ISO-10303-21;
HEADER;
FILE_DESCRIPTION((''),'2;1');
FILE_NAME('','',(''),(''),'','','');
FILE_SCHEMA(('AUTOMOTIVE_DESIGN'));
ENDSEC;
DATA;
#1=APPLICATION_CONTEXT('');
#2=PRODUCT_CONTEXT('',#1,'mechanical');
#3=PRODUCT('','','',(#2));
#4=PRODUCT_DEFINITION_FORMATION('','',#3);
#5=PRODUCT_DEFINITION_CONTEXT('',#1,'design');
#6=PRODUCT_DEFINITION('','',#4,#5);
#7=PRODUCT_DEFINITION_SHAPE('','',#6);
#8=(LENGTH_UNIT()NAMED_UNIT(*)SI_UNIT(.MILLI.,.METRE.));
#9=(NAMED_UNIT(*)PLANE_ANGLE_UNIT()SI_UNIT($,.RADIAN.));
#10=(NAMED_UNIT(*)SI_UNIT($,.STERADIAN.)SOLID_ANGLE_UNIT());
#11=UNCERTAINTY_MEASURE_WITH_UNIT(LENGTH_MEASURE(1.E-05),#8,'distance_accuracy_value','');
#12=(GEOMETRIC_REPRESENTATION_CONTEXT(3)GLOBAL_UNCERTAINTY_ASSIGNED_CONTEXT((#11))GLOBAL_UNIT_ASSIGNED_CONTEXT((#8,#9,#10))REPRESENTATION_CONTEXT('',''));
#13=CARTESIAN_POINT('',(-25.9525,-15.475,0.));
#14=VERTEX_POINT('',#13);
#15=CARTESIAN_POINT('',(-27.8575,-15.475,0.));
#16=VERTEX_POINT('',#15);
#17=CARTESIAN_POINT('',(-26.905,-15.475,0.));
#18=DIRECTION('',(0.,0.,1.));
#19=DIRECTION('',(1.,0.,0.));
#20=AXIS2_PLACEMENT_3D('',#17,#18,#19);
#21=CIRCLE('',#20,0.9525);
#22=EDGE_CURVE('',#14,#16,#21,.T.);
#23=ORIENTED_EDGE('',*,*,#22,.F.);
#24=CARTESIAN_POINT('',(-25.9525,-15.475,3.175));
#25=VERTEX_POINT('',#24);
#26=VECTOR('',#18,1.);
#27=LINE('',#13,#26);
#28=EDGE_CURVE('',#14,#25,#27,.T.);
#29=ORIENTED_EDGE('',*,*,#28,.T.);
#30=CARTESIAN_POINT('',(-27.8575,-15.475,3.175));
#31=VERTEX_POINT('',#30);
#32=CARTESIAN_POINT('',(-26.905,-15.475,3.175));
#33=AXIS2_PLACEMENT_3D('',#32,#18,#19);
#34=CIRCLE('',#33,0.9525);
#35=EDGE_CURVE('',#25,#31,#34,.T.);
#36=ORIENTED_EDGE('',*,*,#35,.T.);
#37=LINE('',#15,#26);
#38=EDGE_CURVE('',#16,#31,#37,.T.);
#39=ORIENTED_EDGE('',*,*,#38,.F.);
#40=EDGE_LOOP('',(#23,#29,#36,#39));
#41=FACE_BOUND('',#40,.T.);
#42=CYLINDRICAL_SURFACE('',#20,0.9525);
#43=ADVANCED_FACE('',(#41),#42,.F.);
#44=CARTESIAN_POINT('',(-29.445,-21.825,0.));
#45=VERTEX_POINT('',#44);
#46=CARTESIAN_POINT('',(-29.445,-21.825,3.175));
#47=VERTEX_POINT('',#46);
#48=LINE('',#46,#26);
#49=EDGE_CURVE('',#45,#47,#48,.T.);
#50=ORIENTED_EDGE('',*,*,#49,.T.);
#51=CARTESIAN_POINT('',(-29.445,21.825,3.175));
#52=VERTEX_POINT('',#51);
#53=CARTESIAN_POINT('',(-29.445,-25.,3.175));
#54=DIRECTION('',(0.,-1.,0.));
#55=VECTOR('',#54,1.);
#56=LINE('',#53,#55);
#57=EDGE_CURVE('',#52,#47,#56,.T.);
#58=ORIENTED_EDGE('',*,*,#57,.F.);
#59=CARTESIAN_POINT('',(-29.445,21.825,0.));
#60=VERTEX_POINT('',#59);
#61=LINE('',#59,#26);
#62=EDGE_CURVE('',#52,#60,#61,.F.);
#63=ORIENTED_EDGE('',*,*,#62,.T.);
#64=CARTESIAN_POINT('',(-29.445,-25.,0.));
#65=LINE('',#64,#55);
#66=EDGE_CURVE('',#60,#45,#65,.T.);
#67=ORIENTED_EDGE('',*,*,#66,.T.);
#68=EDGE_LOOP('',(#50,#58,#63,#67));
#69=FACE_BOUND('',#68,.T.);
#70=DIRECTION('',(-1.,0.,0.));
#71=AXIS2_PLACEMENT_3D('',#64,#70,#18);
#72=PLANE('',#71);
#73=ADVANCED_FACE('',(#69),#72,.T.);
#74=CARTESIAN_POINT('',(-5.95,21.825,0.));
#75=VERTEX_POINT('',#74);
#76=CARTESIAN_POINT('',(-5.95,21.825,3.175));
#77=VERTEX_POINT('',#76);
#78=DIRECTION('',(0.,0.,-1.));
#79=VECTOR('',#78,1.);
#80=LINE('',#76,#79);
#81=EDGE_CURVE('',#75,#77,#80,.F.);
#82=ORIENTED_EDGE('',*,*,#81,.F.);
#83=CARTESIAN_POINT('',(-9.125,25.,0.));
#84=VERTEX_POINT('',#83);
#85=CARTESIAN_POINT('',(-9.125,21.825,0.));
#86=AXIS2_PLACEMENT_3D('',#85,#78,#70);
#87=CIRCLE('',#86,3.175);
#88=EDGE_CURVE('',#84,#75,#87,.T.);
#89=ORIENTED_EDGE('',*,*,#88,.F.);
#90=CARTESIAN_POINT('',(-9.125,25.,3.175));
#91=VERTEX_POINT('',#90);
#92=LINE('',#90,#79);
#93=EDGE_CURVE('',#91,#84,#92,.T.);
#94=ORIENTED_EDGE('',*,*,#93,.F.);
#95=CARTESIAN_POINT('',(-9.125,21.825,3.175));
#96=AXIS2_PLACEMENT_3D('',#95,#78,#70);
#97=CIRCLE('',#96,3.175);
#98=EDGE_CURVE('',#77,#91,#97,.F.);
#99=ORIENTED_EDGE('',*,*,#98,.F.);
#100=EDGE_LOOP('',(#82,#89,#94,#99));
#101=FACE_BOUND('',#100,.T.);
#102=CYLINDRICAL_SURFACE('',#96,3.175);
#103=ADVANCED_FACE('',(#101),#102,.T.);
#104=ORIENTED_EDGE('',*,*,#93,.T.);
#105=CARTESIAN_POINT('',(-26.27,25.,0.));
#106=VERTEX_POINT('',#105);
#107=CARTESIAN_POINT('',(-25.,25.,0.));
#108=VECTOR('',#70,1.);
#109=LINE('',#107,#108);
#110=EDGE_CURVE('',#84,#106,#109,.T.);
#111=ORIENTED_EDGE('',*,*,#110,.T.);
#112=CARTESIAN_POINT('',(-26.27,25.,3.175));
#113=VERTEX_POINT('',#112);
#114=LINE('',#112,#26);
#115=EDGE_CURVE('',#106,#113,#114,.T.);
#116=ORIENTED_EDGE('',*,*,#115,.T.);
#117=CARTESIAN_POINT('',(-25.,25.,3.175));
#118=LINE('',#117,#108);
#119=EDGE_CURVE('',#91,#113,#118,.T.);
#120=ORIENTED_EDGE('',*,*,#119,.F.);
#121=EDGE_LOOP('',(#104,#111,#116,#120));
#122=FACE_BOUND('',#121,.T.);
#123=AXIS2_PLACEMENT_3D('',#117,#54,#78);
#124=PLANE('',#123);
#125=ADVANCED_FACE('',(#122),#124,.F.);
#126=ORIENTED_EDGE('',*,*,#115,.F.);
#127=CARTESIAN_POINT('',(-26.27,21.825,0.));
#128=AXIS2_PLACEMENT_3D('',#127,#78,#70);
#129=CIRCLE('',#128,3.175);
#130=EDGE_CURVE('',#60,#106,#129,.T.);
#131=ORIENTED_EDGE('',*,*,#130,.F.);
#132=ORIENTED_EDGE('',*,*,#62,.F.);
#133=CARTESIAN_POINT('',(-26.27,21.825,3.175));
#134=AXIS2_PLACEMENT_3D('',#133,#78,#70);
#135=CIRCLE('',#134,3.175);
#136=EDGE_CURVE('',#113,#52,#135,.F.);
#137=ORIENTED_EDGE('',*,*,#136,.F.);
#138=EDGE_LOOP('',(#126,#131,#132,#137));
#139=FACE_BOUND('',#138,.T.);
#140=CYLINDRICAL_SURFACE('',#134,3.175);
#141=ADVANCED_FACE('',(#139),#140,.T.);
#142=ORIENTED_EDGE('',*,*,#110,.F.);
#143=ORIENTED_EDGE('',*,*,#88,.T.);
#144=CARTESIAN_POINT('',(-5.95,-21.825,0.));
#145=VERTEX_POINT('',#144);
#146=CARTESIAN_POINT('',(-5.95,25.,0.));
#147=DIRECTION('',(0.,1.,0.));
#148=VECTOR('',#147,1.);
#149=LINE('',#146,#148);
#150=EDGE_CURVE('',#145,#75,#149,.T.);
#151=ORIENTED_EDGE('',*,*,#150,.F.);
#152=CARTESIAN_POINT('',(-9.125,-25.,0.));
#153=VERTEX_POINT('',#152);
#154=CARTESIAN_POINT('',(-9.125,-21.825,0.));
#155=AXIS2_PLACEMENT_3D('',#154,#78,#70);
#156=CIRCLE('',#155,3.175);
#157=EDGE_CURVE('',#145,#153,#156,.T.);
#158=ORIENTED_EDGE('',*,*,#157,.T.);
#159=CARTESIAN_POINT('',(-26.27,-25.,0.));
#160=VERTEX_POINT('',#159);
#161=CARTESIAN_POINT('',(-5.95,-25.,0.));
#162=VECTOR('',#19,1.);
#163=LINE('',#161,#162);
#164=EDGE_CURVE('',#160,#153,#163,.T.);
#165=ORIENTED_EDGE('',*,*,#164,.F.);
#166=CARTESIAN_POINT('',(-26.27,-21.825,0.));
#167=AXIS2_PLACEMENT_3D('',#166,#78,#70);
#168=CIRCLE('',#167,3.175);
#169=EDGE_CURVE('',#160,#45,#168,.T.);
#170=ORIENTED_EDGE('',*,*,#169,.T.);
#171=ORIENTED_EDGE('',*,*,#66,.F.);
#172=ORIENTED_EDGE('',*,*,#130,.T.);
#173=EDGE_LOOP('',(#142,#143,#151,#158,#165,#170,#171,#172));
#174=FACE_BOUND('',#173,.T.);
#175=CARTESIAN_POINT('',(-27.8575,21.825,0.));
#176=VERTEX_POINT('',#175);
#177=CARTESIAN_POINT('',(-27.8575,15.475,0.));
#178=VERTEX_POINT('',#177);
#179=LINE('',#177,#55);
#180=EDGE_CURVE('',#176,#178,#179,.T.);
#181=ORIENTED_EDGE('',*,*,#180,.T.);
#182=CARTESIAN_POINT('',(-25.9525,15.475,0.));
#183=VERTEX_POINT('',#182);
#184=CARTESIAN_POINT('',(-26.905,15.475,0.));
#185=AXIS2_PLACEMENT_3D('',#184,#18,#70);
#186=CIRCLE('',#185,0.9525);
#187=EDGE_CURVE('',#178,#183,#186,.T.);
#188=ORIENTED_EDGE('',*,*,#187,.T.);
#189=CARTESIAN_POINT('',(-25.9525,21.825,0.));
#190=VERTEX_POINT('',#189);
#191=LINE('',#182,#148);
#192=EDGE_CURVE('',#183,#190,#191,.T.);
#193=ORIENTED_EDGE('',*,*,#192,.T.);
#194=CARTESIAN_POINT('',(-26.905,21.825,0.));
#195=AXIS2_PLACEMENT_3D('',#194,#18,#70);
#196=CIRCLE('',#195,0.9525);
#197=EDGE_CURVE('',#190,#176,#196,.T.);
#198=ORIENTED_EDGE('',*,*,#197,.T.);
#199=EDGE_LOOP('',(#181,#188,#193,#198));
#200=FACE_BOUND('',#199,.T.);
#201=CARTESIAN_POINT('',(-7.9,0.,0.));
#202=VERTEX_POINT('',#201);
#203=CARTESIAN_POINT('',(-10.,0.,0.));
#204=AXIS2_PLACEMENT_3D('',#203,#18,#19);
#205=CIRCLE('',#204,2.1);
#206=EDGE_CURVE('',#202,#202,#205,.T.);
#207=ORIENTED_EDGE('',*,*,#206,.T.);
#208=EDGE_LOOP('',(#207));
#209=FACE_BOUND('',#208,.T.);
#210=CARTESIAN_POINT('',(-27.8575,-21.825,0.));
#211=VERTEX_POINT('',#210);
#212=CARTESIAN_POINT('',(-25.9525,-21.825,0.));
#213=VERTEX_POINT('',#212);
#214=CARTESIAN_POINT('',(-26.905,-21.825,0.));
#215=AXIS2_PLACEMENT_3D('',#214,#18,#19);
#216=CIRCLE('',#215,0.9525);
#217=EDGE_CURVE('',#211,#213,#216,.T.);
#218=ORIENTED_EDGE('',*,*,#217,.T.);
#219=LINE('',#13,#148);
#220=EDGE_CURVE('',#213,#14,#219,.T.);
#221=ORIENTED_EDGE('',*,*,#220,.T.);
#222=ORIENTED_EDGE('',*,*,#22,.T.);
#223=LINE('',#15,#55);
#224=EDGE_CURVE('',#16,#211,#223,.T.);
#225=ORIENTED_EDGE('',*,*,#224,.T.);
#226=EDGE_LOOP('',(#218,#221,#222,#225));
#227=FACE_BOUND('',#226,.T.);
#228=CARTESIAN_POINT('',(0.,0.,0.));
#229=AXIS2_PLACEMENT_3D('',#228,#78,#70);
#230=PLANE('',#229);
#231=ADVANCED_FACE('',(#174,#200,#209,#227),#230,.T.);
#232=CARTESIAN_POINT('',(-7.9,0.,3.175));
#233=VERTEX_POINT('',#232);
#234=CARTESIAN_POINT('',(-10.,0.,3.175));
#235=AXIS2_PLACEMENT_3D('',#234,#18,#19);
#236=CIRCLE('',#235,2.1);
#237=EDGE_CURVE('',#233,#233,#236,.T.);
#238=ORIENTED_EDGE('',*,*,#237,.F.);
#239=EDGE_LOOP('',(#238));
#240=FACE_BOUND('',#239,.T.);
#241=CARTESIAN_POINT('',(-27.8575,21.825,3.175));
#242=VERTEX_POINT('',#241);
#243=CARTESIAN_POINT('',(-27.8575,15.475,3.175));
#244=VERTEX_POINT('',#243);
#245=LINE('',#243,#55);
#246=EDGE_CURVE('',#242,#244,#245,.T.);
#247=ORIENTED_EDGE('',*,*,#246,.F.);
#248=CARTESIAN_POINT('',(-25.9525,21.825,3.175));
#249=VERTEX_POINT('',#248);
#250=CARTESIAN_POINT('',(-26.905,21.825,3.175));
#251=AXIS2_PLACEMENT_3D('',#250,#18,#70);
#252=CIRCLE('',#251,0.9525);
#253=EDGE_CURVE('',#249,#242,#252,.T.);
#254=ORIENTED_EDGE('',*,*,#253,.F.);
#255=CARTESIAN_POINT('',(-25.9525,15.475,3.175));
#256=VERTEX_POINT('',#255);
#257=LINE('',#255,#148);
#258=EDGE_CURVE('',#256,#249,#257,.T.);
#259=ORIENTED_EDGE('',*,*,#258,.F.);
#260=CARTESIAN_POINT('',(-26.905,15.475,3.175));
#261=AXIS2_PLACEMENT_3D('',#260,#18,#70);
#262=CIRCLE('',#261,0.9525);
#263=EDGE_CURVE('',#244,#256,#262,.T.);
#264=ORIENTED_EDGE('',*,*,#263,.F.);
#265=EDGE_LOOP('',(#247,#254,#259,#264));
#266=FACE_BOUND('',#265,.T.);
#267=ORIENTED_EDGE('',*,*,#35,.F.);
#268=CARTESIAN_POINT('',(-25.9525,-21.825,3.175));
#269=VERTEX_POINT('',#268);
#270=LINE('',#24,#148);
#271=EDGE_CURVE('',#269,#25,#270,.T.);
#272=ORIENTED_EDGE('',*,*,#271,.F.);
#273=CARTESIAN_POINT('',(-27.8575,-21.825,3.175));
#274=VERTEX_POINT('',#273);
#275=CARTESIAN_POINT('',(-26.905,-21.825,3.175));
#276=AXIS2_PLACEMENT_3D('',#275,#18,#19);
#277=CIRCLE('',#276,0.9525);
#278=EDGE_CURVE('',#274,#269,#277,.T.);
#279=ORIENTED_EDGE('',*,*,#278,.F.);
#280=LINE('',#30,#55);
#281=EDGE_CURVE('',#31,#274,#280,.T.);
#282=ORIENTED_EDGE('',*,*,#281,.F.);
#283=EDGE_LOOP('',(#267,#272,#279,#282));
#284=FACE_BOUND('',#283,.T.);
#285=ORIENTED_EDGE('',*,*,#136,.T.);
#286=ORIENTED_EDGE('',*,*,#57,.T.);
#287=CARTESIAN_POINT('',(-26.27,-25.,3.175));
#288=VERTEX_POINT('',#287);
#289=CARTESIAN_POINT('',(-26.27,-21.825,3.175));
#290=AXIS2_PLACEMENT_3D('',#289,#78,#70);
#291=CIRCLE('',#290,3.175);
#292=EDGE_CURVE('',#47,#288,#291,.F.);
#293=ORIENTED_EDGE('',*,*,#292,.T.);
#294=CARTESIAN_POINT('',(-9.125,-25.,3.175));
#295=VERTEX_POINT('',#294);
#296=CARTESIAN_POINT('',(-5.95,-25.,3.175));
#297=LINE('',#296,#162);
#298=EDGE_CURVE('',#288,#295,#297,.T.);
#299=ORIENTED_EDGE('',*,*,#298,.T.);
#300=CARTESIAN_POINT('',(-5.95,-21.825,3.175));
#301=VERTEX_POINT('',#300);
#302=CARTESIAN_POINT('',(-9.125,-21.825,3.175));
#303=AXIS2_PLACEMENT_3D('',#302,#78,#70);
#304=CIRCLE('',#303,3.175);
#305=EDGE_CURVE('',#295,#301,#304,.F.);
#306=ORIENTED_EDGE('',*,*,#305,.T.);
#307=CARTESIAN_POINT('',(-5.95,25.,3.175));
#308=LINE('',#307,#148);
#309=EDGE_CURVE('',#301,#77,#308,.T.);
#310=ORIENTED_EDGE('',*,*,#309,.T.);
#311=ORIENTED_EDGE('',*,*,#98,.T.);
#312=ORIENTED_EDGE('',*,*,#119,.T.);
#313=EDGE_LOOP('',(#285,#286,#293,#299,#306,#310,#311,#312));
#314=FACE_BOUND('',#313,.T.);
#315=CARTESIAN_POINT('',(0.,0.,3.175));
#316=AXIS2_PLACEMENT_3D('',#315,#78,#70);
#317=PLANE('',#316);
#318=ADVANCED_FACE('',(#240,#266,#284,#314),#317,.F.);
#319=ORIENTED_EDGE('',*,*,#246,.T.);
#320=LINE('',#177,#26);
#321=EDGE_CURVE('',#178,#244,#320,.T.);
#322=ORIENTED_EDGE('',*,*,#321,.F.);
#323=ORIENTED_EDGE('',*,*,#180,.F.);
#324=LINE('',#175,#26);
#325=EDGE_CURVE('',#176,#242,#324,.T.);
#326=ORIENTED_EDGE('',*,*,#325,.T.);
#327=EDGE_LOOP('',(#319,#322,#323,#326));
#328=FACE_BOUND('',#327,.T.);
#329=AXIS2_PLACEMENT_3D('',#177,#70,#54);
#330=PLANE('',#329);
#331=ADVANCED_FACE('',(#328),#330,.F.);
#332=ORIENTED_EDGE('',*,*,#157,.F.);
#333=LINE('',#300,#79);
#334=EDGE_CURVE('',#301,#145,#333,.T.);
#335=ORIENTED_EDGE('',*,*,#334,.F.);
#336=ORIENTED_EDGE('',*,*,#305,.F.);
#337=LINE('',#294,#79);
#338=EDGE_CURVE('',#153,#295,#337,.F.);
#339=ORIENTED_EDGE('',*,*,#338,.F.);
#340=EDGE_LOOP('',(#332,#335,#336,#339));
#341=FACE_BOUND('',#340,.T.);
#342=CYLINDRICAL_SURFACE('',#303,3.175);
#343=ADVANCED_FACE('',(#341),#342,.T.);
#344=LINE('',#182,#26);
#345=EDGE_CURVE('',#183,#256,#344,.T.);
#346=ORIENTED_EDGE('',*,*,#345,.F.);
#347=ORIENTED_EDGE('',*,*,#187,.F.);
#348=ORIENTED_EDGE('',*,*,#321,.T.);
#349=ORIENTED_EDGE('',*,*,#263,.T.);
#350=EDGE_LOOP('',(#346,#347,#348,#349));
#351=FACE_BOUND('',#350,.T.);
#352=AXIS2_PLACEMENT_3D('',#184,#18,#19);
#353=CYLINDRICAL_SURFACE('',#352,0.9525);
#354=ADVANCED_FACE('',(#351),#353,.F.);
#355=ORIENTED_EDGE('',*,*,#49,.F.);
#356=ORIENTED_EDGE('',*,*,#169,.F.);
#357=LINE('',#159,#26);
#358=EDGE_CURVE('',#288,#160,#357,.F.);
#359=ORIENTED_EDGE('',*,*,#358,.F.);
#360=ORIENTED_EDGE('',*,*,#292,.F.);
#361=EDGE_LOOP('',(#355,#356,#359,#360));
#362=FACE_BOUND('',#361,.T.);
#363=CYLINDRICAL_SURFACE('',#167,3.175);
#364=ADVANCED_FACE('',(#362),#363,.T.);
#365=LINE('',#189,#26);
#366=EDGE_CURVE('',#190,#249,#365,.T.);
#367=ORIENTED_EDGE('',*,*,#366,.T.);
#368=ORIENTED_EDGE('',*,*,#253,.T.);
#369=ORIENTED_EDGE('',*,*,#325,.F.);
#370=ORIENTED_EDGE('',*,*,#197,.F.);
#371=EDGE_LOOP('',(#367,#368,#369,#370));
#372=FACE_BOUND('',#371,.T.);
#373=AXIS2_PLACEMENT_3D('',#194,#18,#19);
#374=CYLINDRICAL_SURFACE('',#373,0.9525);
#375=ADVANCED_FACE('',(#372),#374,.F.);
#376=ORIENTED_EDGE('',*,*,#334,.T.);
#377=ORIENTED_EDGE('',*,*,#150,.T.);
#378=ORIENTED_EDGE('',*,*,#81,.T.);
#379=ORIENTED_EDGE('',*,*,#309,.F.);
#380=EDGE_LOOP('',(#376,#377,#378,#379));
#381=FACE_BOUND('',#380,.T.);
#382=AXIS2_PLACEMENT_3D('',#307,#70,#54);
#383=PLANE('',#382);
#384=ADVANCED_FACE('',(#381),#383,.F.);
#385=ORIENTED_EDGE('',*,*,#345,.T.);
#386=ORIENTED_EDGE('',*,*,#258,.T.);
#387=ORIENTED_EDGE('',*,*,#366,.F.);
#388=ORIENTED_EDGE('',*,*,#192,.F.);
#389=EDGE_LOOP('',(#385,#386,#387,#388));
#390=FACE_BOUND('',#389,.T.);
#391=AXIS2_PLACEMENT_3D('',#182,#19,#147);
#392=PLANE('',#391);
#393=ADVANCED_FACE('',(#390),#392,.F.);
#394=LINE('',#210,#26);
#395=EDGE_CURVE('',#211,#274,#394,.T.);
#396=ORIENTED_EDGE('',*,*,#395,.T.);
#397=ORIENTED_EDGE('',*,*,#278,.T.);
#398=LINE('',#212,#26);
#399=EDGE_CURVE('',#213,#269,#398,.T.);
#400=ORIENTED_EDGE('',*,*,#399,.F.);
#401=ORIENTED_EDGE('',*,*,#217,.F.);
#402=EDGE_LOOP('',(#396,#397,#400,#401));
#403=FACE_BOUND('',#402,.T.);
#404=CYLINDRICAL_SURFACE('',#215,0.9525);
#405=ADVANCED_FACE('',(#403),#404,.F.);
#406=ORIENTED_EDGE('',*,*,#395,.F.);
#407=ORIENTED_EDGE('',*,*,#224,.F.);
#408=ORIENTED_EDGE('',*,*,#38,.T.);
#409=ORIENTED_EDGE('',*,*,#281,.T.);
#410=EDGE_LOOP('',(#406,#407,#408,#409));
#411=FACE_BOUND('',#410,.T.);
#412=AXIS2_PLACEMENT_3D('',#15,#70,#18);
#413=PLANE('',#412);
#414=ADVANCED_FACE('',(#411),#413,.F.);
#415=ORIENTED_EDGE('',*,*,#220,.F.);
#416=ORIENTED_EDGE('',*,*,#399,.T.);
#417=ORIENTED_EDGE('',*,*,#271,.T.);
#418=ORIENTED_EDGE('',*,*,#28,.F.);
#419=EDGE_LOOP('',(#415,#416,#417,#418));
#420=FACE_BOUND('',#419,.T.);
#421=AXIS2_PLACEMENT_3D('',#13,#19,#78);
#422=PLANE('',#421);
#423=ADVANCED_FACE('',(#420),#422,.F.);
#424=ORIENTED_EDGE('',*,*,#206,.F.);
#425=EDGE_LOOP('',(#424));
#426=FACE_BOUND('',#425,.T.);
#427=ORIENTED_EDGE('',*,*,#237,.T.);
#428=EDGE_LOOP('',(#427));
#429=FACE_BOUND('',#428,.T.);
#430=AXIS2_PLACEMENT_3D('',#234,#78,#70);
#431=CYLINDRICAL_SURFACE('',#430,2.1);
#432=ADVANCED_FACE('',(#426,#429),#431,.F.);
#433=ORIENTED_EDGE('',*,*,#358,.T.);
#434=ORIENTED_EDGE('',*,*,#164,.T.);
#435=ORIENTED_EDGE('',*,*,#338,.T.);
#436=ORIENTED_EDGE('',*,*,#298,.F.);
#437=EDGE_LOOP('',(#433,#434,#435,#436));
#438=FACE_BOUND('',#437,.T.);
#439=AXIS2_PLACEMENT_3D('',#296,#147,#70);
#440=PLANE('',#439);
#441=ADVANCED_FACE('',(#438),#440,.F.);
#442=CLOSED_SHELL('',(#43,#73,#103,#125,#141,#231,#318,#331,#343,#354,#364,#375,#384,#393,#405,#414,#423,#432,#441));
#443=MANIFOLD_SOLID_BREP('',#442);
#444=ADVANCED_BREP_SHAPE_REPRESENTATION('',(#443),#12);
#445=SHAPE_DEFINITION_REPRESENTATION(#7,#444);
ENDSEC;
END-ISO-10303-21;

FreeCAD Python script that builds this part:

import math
import FreeCAD as App
import Part
import Sketcher

V = App.Vector
Q = App.Units.Quantity


def edges_at(feature, points):
    """Names of the edges that pass closest to the given points."""
    edges = feature.Shape.Edges
    near = lambda p: min(range(len(edges)), key=lambda i: edges[i].distToShape(Part.Vertex(*p))[0])
    return sorted({f"Edge{near(p) + 1}" for p in points})

doc = App.newDocument("Part")
body = doc.addObject("PartDesign::Body", "Body")

# Sketch on XY plane
sketch1 = body.newObject("Sketcher::SketchObject", "Sketch")
sketch1.AttachmentSupport = (doc.getObject("XY_Plane"), [""])
sketch1.MapMode = "FlatFace"
sketch1.addGeometry([
    Part.LineSegment(V(-25, 25, 0), V(-25, -25, 0)),  # 0
    Part.LineSegment(V(-25, -25, 0), V(-5.95, -25, 0)),  # 1
    Part.LineSegment(V(-5.95, -25, 0), V(-5.95, 25, 0)),  # 2
    Part.LineSegment(V(-5.95, 25, 0), V(-25, 25, 0)),  # 3
    Part.Circle(V(-10, 0, 0), V(0, 0, 1), 2.1),  # 4
], False)
sketch1.addConstraint([
    Sketcher.Constraint("Coincident", 0, 2, 1, 1),
    Sketcher.Constraint("Coincident", 1, 2, 2, 1),
    Sketcher.Constraint("Coincident", 2, 2, 3, 1),
    Sketcher.Constraint("Coincident", 3, 2, 0, 1),
    Sketcher.Constraint("Vertical", 0),
    Sketcher.Constraint("Horizontal", 1),
    Sketcher.Constraint("Vertical", 2),
    Sketcher.Constraint("Horizontal", 3),
    Sketcher.Constraint("PointOnObject", 4, 3, -1),
    Sketcher.Constraint("DistanceX", 1, 1, 1, 2, Q("0.75 in")),
    Sketcher.Constraint("Diameter", 4, Q("4.2 mm")),
    Sketcher.Constraint("DistanceY", 0, 2, 0, 1, Q("50 mm")),
    Sketcher.Constraint("DistanceX", 4, 3, -1, 1, Q("10 mm")),
    Sketcher.Constraint("DistanceX", 0, 2, -1, 1, Q("25 mm")),
    Sketcher.Constraint("DistanceY", 0, 2, -1, 1, Q("25 mm")),
])
pad1 = body.newObject("PartDesign::Pad", "Pad")
pad1.Profile = sketch1
pad1.Length = Q("0.125 in")

# Sketch on XY plane
sketch2 = body.newObject("Sketcher::SketchObject", "Sketch001")
sketch2.AttachmentSupport = (doc.getObject("XY_Plane"), [""])
sketch2.MapMode = "FlatFace"
sketch2.AttachmentOffset = App.Placement(V(0, 0, 0.125 * 25.4), App.Rotation())
sketch2.addGeometry([
    Part.LineSegment(V(-29.445, 25, 0), V(-29.445, -25, 0)),
    Part.LineSegment(V(-29.445, -25, 0), V(-25, -25, 0)),
    Part.LineSegment(V(-25, -25, 0), V(-25, 25, 0)),
    Part.LineSegment(V(-25, 25, 0), V(-29.445, 25, 0)),
], False)
sketch2.addConstraint([
    Sketcher.Constraint("Coincident", 0, 2, 1, 1),
    Sketcher.Constraint("Coincident", 1, 2, 2, 1),
    Sketcher.Constraint("Coincident", 2, 2, 3, 1),
    Sketcher.Constraint("Coincident", 3, 2, 0, 1),
    Sketcher.Constraint("Vertical", 0),
    Sketcher.Constraint("Horizontal", 1),
    Sketcher.Constraint("Vertical", 2),
    Sketcher.Constraint("Horizontal", 3),
    Sketcher.Constraint("DistanceX", 1, 1, 1, 2, Q("0.175 in")),
    Sketcher.Constraint("DistanceY", 0, 2, 0, 1, Q("50 mm")),
    Sketcher.Constraint("DistanceX", 0, 2, -1, 1, Q("29.445 mm")),
    Sketcher.Constraint("DistanceY", 0, 2, -1, 1, Q("25 mm")),
])
pad2 = body.newObject("PartDesign::Pad", "Pad001")
pad2.Profile = sketch2
pad2.Length = Q("0.125 in")
pad2.Reversed = True

# Sketch on XY plane
sketch3 = body.newObject("Sketcher::SketchObject", "Sketch002")
sketch3.AttachmentSupport = (doc.getObject("XY_Plane"), [""])
sketch3.MapMode = "FlatFace"
sketch3.AttachmentOffset = App.Placement(V(0, 0, 0.125 * 25.4), App.Rotation())
sketch3.addGeometry([
    Part.LineSegment(V(-25.9525, -21.825, 0), V(-25.9525, -15.475, 0)),  # 0
    Part.ArcOfCircle(Part.Circle(V(-26.905, -15.475, 0), V(0, 0, 1), 0.9525), math.radians(0), math.radians(180)),  # 1
    Part.LineSegment(V(-27.8575, -15.475, 0), V(-27.8575, -21.825, 0)),  # 2
    Part.ArcOfCircle(Part.Circle(V(-26.905, -21.825, 0), V(0, 0, 1), 0.9525), math.radians(180), math.radians(360)),  # 3
    Part.LineSegment(V(-25.9525, 15.475, 0), V(-25.9525, 21.825, 0)),  # 4
    Part.ArcOfCircle(Part.Circle(V(-26.905, 21.825, 0), V(0, 0, 1), 0.9525), math.radians(0), math.radians(180)),  # 5
    Part.LineSegment(V(-27.8575, 21.825, 0), V(-27.8575, 15.475, 0)),  # 6
    Part.ArcOfCircle(Part.Circle(V(-26.905, 15.475, 0), V(0, 0, 1), 0.9525), math.radians(180), math.radians(360)),  # 7
], False)
sketch3.addConstraint([
    Sketcher.Constraint("Tangent", 0, 2, 1, 1),
    Sketcher.Constraint("Tangent", 1, 2, 2, 1),
    Sketcher.Constraint("Tangent", 2, 2, 3, 1),
    Sketcher.Constraint("Tangent", 3, 2, 0, 1),
    Sketcher.Constraint("Tangent", 4, 2, 5, 1),
    Sketcher.Constraint("Tangent", 5, 2, 6, 1),
    Sketcher.Constraint("Tangent", 6, 2, 7, 1),
    Sketcher.Constraint("Tangent", 7, 2, 4, 1),
    Sketcher.Constraint("Vertical", 0),
    Sketcher.Constraint("Vertical", 2),
    Sketcher.Constraint("Vertical", 4),
    Sketcher.Constraint("Vertical", 6),
    Sketcher.Constraint("Equal", 3, 5),
    Sketcher.Constraint("Symmetric", 3, 3, 5, 3, -1),
    Sketcher.Constraint("Equal", 2, 4),
    Sketcher.Constraint("DistanceY", 0, 1, 0, 2, Q("0.25 in")),
    Sketcher.Constraint("Radius", 1, Q("0.0375 in")),
    Sketcher.Constraint("DistanceX", 1, 3, -1, 1, Q("26.905 mm")),
    Sketcher.Constraint("DistanceY", 1, 3, -1, 1, Q("15.475 mm")),
])
pocket1 = body.newObject("PartDesign::Pocket", "Pocket")
pocket1.Profile = sketch3
pocket1.Length = Q("0.125 in")
doc.recompute()

fillet = body.newObject("PartDesign::Fillet", "Fillet")
fillet.Base = (pocket1, edges_at(pocket1, [
    (-29.445, -25, 1.587),
    (-29.445, 25, 1.587),
    (-5.95, 25, 1.587),
    (-5.95, -25, 1.587),
]))
fillet.Radius = Q("0.125 in")

doc.recompute()
